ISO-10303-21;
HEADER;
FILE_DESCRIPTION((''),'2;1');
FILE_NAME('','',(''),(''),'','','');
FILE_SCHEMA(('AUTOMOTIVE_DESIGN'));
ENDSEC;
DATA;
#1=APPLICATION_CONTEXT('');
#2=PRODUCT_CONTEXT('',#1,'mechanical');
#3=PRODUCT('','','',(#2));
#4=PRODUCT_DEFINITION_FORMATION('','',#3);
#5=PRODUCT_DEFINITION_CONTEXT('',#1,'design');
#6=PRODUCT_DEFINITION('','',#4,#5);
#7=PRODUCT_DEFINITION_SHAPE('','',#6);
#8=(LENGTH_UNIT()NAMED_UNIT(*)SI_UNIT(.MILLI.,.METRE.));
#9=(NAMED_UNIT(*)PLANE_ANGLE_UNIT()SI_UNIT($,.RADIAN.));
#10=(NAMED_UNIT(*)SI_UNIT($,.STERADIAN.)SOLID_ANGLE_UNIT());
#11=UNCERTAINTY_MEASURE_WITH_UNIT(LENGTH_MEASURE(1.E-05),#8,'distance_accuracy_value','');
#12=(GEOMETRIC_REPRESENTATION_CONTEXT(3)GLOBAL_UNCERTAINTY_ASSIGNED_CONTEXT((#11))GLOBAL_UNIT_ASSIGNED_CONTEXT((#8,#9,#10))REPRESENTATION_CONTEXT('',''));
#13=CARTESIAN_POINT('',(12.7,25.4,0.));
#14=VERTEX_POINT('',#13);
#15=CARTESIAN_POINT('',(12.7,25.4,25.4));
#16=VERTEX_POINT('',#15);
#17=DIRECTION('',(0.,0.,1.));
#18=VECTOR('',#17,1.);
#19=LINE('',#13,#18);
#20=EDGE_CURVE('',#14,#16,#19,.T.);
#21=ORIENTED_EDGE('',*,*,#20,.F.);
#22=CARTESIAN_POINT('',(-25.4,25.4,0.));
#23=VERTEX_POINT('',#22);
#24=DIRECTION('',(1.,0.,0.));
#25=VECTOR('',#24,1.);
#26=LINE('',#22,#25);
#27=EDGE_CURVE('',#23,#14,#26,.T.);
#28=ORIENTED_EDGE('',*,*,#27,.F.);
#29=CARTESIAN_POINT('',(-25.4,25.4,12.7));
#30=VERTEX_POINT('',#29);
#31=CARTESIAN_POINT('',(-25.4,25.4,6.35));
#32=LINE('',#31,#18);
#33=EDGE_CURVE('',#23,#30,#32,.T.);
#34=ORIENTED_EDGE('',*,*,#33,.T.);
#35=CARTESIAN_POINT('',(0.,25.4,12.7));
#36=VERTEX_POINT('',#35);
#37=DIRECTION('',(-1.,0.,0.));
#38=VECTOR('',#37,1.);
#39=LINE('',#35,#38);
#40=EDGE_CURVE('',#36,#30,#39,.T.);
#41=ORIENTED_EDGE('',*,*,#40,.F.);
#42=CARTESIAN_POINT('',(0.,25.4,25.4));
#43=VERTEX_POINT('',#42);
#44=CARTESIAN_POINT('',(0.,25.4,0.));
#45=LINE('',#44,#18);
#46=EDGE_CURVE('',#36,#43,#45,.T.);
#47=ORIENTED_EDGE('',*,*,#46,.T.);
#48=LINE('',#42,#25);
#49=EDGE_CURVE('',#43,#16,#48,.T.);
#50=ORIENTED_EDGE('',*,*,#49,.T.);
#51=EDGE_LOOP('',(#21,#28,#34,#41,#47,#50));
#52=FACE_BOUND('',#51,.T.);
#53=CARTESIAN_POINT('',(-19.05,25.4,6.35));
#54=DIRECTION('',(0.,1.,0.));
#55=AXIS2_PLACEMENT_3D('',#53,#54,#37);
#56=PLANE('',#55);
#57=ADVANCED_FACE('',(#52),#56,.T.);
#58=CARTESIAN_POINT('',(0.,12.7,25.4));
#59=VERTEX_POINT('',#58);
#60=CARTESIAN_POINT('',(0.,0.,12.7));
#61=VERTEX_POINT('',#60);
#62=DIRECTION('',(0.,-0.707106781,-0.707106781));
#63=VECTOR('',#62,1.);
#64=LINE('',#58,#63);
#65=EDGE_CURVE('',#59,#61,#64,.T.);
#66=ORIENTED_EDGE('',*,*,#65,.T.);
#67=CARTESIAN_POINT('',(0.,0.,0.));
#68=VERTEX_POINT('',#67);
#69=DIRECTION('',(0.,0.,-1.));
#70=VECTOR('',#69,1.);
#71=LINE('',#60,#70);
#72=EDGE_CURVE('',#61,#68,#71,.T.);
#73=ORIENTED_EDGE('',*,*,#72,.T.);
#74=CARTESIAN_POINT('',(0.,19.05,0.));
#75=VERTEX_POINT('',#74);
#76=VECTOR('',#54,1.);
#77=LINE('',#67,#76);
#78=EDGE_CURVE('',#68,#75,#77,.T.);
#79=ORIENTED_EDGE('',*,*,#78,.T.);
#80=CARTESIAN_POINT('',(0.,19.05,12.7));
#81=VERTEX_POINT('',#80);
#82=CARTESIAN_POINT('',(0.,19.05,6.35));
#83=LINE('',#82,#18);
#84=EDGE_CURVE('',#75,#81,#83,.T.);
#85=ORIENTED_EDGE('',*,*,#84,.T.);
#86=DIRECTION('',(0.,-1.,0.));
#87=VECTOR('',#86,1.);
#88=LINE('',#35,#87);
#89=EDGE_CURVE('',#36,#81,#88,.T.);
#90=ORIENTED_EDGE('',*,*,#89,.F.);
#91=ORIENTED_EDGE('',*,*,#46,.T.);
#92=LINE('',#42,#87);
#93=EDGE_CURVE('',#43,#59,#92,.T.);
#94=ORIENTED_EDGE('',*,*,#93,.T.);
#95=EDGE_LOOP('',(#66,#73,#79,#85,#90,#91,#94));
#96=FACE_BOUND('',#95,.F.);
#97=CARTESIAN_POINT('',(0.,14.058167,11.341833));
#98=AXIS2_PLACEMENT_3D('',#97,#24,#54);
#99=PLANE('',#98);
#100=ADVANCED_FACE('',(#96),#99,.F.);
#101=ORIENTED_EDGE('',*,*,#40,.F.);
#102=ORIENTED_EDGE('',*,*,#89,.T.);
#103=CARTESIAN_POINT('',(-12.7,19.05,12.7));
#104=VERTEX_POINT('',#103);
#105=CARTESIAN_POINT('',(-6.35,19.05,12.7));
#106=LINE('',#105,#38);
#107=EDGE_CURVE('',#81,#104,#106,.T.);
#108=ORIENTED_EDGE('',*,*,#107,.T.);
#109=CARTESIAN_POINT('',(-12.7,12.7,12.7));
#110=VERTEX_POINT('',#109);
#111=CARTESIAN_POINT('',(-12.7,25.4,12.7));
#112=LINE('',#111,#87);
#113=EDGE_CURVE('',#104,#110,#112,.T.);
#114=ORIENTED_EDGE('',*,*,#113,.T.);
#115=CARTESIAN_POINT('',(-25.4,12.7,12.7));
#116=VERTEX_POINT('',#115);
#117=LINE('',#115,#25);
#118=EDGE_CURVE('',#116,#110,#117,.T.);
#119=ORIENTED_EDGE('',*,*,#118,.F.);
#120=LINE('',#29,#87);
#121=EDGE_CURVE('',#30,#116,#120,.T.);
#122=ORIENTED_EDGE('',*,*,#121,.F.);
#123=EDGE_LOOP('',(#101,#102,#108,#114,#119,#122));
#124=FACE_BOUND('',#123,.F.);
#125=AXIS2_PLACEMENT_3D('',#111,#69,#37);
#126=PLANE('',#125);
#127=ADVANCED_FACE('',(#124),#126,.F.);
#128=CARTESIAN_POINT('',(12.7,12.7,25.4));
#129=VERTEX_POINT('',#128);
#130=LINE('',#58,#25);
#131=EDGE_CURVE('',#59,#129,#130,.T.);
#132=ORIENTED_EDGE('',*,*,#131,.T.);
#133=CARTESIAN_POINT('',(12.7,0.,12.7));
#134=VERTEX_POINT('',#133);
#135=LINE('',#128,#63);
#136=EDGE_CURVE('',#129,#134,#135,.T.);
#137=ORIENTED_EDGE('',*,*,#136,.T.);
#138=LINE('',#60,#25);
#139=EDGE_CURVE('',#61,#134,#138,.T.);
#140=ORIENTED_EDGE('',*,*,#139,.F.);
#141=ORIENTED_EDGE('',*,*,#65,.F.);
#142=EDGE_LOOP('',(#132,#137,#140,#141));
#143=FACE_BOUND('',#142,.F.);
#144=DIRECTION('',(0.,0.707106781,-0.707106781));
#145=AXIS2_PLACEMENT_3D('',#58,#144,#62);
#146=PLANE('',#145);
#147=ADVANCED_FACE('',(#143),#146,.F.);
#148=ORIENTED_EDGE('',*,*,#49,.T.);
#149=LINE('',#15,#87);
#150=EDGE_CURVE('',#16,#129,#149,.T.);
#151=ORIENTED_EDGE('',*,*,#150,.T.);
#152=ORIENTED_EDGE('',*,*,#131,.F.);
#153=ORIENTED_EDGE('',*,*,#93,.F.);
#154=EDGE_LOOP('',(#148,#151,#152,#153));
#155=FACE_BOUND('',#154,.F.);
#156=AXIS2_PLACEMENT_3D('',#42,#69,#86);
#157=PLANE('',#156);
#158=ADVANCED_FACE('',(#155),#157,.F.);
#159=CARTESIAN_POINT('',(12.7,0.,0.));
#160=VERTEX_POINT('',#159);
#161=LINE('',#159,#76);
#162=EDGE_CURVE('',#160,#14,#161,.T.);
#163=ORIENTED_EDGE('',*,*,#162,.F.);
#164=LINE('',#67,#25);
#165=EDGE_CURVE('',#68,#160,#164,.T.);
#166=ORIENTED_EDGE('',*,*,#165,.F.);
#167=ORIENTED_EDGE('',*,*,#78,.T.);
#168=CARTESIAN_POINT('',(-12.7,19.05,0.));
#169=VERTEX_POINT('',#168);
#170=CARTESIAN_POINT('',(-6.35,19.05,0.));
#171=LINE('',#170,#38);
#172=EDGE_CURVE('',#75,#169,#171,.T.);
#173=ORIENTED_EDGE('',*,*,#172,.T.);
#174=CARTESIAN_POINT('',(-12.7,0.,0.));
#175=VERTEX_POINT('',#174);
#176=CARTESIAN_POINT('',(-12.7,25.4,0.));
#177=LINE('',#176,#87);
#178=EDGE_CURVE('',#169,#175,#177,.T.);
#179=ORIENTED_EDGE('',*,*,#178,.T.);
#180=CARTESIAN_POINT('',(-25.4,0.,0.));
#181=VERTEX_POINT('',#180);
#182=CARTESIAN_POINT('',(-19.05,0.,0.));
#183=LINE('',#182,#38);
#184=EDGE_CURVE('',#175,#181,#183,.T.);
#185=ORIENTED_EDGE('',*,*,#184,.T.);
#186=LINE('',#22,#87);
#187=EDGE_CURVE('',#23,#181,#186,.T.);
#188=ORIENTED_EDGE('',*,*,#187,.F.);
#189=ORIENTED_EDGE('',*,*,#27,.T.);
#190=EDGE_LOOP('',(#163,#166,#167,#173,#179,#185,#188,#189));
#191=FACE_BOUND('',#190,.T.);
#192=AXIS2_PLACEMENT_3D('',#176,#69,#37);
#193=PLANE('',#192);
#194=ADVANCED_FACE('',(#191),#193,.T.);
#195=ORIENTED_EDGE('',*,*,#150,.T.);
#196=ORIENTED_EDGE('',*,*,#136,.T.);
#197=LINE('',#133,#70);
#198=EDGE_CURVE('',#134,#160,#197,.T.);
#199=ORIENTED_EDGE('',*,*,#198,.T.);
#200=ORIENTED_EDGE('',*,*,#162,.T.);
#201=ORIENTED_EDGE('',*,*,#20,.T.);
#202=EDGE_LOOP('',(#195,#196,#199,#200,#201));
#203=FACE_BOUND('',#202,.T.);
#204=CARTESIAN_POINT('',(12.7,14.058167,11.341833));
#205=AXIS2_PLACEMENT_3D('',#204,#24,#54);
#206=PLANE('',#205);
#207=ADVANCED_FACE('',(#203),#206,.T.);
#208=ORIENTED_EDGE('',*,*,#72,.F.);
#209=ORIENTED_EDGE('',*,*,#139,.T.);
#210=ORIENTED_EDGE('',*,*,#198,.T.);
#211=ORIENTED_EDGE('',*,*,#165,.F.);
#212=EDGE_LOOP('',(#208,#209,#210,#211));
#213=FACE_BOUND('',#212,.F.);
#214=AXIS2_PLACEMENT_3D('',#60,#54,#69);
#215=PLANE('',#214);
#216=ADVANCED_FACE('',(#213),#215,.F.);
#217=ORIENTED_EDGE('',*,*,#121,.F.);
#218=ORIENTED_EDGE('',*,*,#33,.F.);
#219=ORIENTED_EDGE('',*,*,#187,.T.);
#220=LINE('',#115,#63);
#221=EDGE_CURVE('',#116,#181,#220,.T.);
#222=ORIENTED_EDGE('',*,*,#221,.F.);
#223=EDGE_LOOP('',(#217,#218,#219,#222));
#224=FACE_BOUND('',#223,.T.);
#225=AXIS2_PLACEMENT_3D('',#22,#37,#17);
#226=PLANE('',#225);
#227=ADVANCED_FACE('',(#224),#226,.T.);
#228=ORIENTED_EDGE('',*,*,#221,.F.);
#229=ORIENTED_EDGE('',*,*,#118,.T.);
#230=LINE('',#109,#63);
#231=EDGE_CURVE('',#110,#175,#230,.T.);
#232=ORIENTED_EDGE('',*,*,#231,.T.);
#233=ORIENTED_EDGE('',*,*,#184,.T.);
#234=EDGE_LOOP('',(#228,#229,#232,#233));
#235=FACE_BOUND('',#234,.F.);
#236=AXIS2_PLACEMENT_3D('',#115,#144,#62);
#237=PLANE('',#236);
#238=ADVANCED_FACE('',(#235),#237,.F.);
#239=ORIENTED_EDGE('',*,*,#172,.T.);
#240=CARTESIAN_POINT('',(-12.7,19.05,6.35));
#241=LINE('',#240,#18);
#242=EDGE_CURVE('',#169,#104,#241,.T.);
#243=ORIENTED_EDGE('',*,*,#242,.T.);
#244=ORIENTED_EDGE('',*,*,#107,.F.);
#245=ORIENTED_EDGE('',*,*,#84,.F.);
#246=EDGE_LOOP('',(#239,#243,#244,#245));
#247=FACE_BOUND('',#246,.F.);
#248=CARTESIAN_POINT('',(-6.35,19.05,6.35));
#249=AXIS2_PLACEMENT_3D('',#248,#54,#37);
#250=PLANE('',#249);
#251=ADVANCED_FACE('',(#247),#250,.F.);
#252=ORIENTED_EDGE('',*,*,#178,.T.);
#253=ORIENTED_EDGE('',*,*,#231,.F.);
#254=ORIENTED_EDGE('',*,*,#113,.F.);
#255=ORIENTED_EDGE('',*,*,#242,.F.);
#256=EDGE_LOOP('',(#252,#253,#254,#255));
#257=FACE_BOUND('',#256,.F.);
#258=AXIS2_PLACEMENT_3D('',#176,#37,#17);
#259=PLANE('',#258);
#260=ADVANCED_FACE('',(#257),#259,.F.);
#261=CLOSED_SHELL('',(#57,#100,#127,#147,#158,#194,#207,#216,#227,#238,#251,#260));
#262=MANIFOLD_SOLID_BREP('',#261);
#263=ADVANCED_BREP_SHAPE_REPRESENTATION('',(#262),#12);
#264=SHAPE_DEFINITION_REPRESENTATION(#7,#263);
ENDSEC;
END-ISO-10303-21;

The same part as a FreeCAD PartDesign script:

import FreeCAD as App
import Part
import Sketcher
from FreeCAD import Vector
Q = App.Units.Quantity

doc = App.newDocument("Part")
params = doc.addObject("Spreadsheet::Sheet", "Params")
for row, (alias, value) in enumerate([
    ("sketch1_width", "1 in"),
    ("sketch1_width2", "0.5 in"),
    ("pad1_length", "0.5 in"),
    ("sketch2_width", "0.5 in"),
    ("pad2_length", "0.25 in"),
    ("sketch3_width", "0.5 in"),
    ("pad3_length", "1 in"),
    ("sketch4_width", "0.5 in"),
    ("pocket1_length", "0.5 in"),
], start=1):
    params.set(f"A{row}", alias)
    params.set(f"B{row}", "=" + value)
    params.setAlias(f"B{row}", alias)

body = doc.addObject("PartDesign::Body", "Body")

# Sketch on YZ plane
sketch1 = body.newObject("Sketcher::SketchObject", "Sketch")
sketch1.AttachmentSupport = (doc.getObject("YZ_Plane"), [""])
sketch1.MapMode = "FlatFace"
sketch1.addGeometry([
    Part.LineSegment(Vector(0, 13, 0), Vector(0, 0, 0)),  # 0
    Part.LineSegment(Vector(0, 0, 0), Vector(25, 0, 0)),  # 1
    Part.LineSegment(Vector(25, 0, 0), Vector(25, 25, 0)),  # 2
    Part.LineSegment(Vector(25, 25, 0), Vector(13, 25, 0)),  # 3
    Part.LineSegment(Vector(13, 25, 0), Vector(0, 13, 0)),  # 4
], False)
sketch1.addConstraint([
    Sketcher.Constraint("Coincident", 0, 2, 1, 1),
    Sketcher.Constraint("Coincident", 1, 2, 2, 1),
    Sketcher.Constraint("Coincident", 2, 2, 3, 1),
    Sketcher.Constraint("Coincident", 3, 2, 4, 1),
    Sketcher.Constraint("Coincident", 4, 2, 0, 1),
    Sketcher.Constraint("Vertical", 0),
    Sketcher.Constraint("Horizontal", 1),
    Sketcher.Constraint("Vertical", 2),
    Sketcher.Constraint("Horizontal", 3),
    Sketcher.Constraint("Coincident", 0, 2, -1, 1),
    Sketcher.Constraint("Equal", 3, 0),
    Sketcher.Constraint("Equal", 1, 2),
    Sketcher.Constraint("DistanceX", 1, 1, 1, 2, Q("1 in")),
    Sketcher.Constraint("DistanceX", 3, 2, 3, 1, Q("0.5 in")),
])
sketch1.setExpression("Constraints[12]", "Params.sketch1_width")
sketch1.setExpression("Constraints[13]", "Params.sketch1_width2")
pad1 = body.newObject("PartDesign::Pad", "Pad")
pad1.Profile = sketch1
pad1.setExpression("Length", "Params.pad1_length")

# Sketch on XZ plane
sketch2 = body.newObject("Sketcher::SketchObject", "Sketch001")
sketch2.AttachmentSupport = (doc.getObject("XZ_Plane"), [""])
sketch2.MapMode = "FlatFace"
sketch2.AttachmentOffset = App.Placement(Vector(0, 0, -1 * 25.4), App.Rotation())
sketch2.addGeometry([
    Part.LineSegment(Vector(0, 13, 0), Vector(0, 0, 0)),
    Part.LineSegment(Vector(0, 0, 0), Vector(-13, 0, 0)),
    Part.LineSegment(Vector(-13, 0, 0), Vector(-13, 13, 0)),
    Part.LineSegment(Vector(-13, 13, 0), Vector(0, 13, 0)),
], False)
sketch2.addConstraint([
    Sketcher.Constraint("Coincident", 0, 2, 1, 1),
    Sketcher.Constraint("Coincident", 1, 2, 2, 1),
    Sketcher.Constraint("Coincident", 2, 2, 3, 1),
    Sketcher.Constraint("Coincident", 3, 2, 0, 1),
    Sketcher.Constraint("Vertical", 0),
    Sketcher.Constraint("Horizontal", 1),
    Sketcher.Constraint("Vertical", 2),
    Sketcher.Constraint("Horizontal", 3),
    Sketcher.Constraint("Coincident", 0, 2, -1, 1),
    Sketcher.Constraint("Equal", 3, 0),
    Sketcher.Constraint("DistanceX", 1, 2, 1, 1, Q("0.5 in")),
])
sketch2.setExpression("Constraints[10]", "Params.sketch2_width")
pad2 = body.newObject("PartDesign::Pad", "Pad001")
pad2.Profile = sketch2
pad2.setExpression("Length", "Params.pad2_length")

# Sketch on XZ plane
sketch3 = body.newObject("Sketcher::SketchObject", "Sketch002")
sketch3.AttachmentSupport = (doc.getObject("XZ_Plane"), [""])
sketch3.MapMode = "FlatFace"
sketch3.AttachmentOffset = App.Placement(Vector(0, 0, -1 * 25.4), App.Rotation())
sketch3.addGeometry([
    Part.LineSegment(Vector(-13, 13, 0), Vector(-13, 0, 0)),
    Part.LineSegment(Vector(-13, 0, 0), Vector(-25, 0, 0)),
    Part.LineSegment(Vector(-25, 0, 0), Vector(-25, 13, 0)),
    Part.LineSegment(Vector(-25, 13, 0), Vector(-13, 13, 0)),
], False)
sketch3.addConstraint([
    Sketcher.Constraint("Coincident", 0, 2, 1, 1),
    Sketcher.Constraint("Coincident", 1, 2, 2, 1),
    Sketcher.Constraint("Coincident", 2, 2, 3, 1),
    Sketcher.Constraint("Coincident", 3, 2, 0, 1),
    Sketcher.Constraint("Vertical", 0),
    Sketcher.Constraint("Horizontal", 1),
    Sketcher.Constraint("Vertical", 2),
    Sketcher.Constraint("Horizontal", 3),
    Sketcher.Constraint("PointOnObject", 0, 2, -1),
    Sketcher.Constraint("Equal", 3, 0),
    Sketcher.Constraint("DistanceX", 1, 2, 1, 1, Q("0.5 in")),
    Sketcher.Constraint("DistanceX", 1, 2, -1, 1, Q("1 in")),
])
sketch3.setExpression("Constraints[10]", "Params.sketch3_width")
pad3 = body.newObject("PartDesign::Pad", "Pad002")
pad3.Profile = sketch3
pad3.setExpression("Length", "Params.pad3_length")

# Sketch on YZ plane
sketch4 = body.newObject("Sketcher::SketchObject", "Sketch003")
sketch4.AttachmentSupport = (doc.getObject("YZ_Plane"), [""])
sketch4.MapMode = "FlatFace"
sketch4.AttachmentOffset = App.Placement(Vector(0, 0, -1 * 25.4), App.Rotation())
sketch4.addGeometry([
    Part.LineSegment(Vector(13, 13, 0), Vector(0, 0, 0)),
    Part.LineSegment(Vector(0, 0, 0), Vector(0, 13, 0)),
    Part.LineSegment(Vector(0, 13, 0), Vector(13, 13, 0)),
], False)
sketch4.addConstraint([
    Sketcher.Constraint("Coincident", 0, 2, 1, 1),
    Sketcher.Constraint("Coincident", 1, 2, 2, 1),
    Sketcher.Constraint("Coincident", 2, 2, 0, 1),
    Sketcher.Constraint("Vertical", 1),
    Sketcher.Constraint("Horizontal", 2),
    Sketcher.Constraint("Coincident", 0, 2, -1, 1),
    Sketcher.Constraint("Equal", 2, 1),
    Sketcher.Constraint("DistanceX", 2, 1, 2, 2, Q("0.5 in")),
])
sketch4.setExpression("Constraints[7]", "Params.sketch4_width")
pocket1 = body.newObject("PartDesign::Pocket", "Pocket")
pocket1.Profile = sketch4
pocket1.setExpression("Length", "Params.pocket1_length")
pocket1.Reversed = True

doc.recompute()
